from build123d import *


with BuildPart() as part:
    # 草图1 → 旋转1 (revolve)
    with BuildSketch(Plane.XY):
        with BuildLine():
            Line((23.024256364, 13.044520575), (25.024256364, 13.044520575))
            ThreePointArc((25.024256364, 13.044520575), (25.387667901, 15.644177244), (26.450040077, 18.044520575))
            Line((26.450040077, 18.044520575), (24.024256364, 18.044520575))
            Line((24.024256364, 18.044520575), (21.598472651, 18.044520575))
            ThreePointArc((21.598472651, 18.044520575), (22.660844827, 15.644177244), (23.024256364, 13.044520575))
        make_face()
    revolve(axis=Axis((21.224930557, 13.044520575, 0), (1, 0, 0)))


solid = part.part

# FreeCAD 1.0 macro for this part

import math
import FreeCAD as App
import Part
import Sketcher
from FreeCAD import Vector
Q = App.Units.Quantity

doc = App.newDocument("Part")
body = doc.addObject("PartDesign::Body", "Body")

# Sketch on XY plane
sketch1 = doc.addObject("Sketcher::SketchObject", "Sketch")
body.addObject(sketch1)
sketch1.AttachmentSupport = (doc.XY_Plane, [""])
sketch1.MapMode = "FlatFace"
sketch1.addGeometry(Part.LineSegment(Vector(23, 13, 0), Vector(25, 13, 0)), False)
sketch1.addGeometry(Part.ArcOfCircle(Part.Circle(Vector(34.5, 13, 0), Vector(0, 0, 1), 9.5), math.radians(148), math.radians(180)), False)
sketch1.addGeometry(Part.LineSegment(Vector(26.5, 18, 0), Vector(21.6, 18, 0)), False)
sketch1.addGeometry(Part.ArcOfCircle(Part.Circle(Vector(13.5, 13, 0), Vector(0, 0, 1), 9.5), math.radians(0), math.radians(32)), False)
sketch1.addGeometry(Part.LineSegment(Vector(13.5, 13, 0), Vector(34.5, 13, 0)), True)  # axis
sketch1.addConstraint(Sketcher.Constraint("Coincident", 0, 2, 1, 2))
sketch1.addConstraint(Sketcher.Constraint("Coincident", 1, 1, 2, 1))
sketch1.addConstraint(Sketcher.Constraint("Coincident", 2, 2, 3, 2))
sketch1.addConstraint(Sketcher.Constraint("Coincident", 3, 1, 0, 1))
sketch1.addConstraint(Sketcher.Constraint("Horizontal", 0))
sketch1.addConstraint(Sketcher.Constraint("Horizontal", 2))
sketch1.addConstraint(Sketcher.Constraint("Horizontal", 4))
sketch1.addConstraint(Sketcher.Constraint("Coincident", 4, 1, 3, 3))
sketch1.addConstraint(Sketcher.Constraint("Coincident", 4, 2, 1, 3))
sketch1.addConstraint(Sketcher.Constraint("Equal", 1, 3))
sketch1.addConstraint(Sketcher.Constraint("Horizontal", 3, 3, 0, 2))
sketch1.addConstraint(Sketcher.Constraint("DistanceX", 0, 1, 0, 2, Q("2 mm")))
sketch1.addConstraint(Sketcher.Constraint("Radius", 1, Q("9.48 mm")))
sketch1.addConstraint(Sketcher.Constraint("DistanceY", 0, 2, 1, 1, Q("5 mm")))
sketch1.addConstraint(Sketcher.Constraint("DistanceY", -1, 1, 1, 3, Q("13.044521 mm")))
sketch1.addConstraint(Sketcher.Constraint("DistanceX", -1, 1, 1, 1, Q("26.45004 mm")))
revolution = doc.addObject("PartDesign::Revolution", "Revolution")
body.addObject(revolution)
revolution.Profile = sketch1
revolution.ReferenceAxis = (sketch1, ["Axis0"])
revolution.Angle = 360

doc.recompute()
